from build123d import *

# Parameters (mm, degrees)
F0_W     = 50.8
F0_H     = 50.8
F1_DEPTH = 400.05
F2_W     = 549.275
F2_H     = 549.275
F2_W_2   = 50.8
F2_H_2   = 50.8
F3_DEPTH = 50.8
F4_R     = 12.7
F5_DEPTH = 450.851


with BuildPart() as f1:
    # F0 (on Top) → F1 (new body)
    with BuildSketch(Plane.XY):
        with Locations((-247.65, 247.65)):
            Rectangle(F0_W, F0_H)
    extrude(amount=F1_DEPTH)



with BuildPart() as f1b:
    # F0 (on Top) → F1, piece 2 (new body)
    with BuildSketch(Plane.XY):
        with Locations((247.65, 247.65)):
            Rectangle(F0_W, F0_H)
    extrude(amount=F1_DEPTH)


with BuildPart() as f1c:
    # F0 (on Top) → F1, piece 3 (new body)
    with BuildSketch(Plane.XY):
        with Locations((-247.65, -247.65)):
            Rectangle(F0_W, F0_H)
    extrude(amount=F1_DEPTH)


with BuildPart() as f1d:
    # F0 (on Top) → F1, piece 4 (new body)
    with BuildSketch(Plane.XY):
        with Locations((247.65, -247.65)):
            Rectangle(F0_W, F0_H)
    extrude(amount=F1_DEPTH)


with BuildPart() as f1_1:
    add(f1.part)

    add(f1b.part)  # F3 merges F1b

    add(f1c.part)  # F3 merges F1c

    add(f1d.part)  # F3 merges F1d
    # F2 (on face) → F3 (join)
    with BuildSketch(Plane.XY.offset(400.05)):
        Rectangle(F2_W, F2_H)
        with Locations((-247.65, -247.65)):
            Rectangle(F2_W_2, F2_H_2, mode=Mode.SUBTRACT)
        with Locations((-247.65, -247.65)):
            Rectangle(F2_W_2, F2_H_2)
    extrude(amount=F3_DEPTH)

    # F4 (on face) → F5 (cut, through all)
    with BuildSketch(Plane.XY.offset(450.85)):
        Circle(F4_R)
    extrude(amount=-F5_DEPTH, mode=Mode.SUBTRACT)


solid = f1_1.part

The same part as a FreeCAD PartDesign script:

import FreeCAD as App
import Part
import Sketcher
Q = App.Units.Quantity

doc = App.newDocument("Part")
body = doc.addObject("PartDesign::Body", "Body")

# Sketch on XY plane
sketch1 = doc.addObject("Sketcher::SketchObject", "Sketch")
body.addObject(sketch1)
sketch1.AttachmentSupport = (doc.XY_Plane, [""])
sketch1.MapMode = "FlatFace"
sketch1.addGeometry([
    Part.LineSegment(App.Vector(-273, 273, 0), App.Vector(-273, 222, 0)),
    Part.LineSegment(App.Vector(-273, 222, 0), App.Vector(-222, 222, 0)),
    Part.LineSegment(App.Vector(-222, 222, 0), App.Vector(-222, 273, 0)),
    Part.LineSegment(App.Vector(-222, 273, 0), App.Vector(-273, 273, 0)),
], False)
sketch1.addConstraint([
    Sketcher.Constraint("Coincident", 0, 2, 1, 1),
    Sketcher.Constraint("Coincident", 1, 2, 2, 1),
    Sketcher.Constraint("Coincident", 2, 2, 3, 1),
    Sketcher.Constraint("Coincident", 3, 2, 0, 1),
    Sketcher.Constraint("Vertical", 0),
    Sketcher.Constraint("Horizontal", 1),
    Sketcher.Constraint("Vertical", 2),
    Sketcher.Constraint("Horizontal", 3),
    Sketcher.Constraint("Equal", 3, 0),
    Sketcher.Constraint("DistanceX", 1, 1, 1, 2, Q("2 in")),
    Sketcher.Constraint("DistanceX", 0, 2, -1, 1, Q("10.75 in")),
    Sketcher.Constraint("DistanceY", -1, 1, 0, 2, Q("8.75 in")),
])
pad1 = doc.addObject("PartDesign::Pad", "Pad")
body.addObject(pad1)
pad1.Profile = sketch1
pad1.Length = Q("15.75 in")
body2 = doc.addObject("PartDesign::Body", "Body001")

# Sketch on XY plane
sketch2 = doc.addObject("Sketcher::SketchObject", "Sketch001")
body2.addObject(sketch2)
sketch2.AttachmentSupport = (doc.getObject("XY_Plane001"), [""])
sketch2.MapMode = "FlatFace"
sketch2.addGeometry([
    Part.LineSegment(App.Vector(222, 273, 0), App.Vector(222, 222, 0)),
    Part.LineSegment(App.Vector(222, 222, 0), App.Vector(273, 222, 0)),
    Part.LineSegment(App.Vector(273, 222, 0), App.Vector(273, 273, 0)),
    Part.LineSegment(App.Vector(273, 273, 0), App.Vector(222, 273, 0)),
], False)
sketch2.addConstraint([
    Sketcher.Constraint("Coincident", 0, 2, 1, 1),
    Sketcher.Constraint("Coincident", 1, 2, 2, 1),
    Sketcher.Constraint("Coincident", 2, 2, 3, 1),
    Sketcher.Constraint("Coincident", 3, 2, 0, 1),
    Sketcher.Constraint("Vertical", 0),
    Sketcher.Constraint("Horizontal", 1),
    Sketcher.Constraint("Vertical", 2),
    Sketcher.Constraint("Horizontal", 3),
    Sketcher.Constraint("Equal", 3, 0),
    Sketcher.Constraint("DistanceX", 1, 1, 1, 2, Q("2 in")),
    Sketcher.Constraint("DistanceX", -1, 1, 0, 2, Q("8.75 in")),
    Sketcher.Constraint("DistanceY", -1, 1, 0, 2, Q("8.75 in")),
])
pad2 = doc.addObject("PartDesign::Pad", "Pad001")
body2.addObject(pad2)
pad2.Profile = sketch2
pad2.Length = Q("15.75 in")
body3 = doc.addObject("PartDesign::Body", "Body002")

# Sketch on XY plane
sketch3 = doc.addObject("Sketcher::SketchObject", "Sketch002")
body3.addObject(sketch3)
sketch3.AttachmentSupport = (doc.getObject("XY_Plane002"), [""])
sketch3.MapMode = "FlatFace"
sketch3.addGeometry([
    Part.LineSegment(App.Vector(-273, -222, 0), App.Vector(-273, -273, 0)),
    Part.LineSegment(App.Vector(-273, -273, 0), App.Vector(-222, -273, 0)),
    Part.LineSegment(App.Vector(-222, -273, 0), App.Vector(-222, -222, 0)),
    Part.LineSegment(App.Vector(-222, -222, 0), App.Vector(-273, -222, 0)),
], False)
sketch3.addConstraint([
    Sketcher.Constraint("Coincident", 0, 2, 1, 1),
    Sketcher.Constraint("Coincident", 1, 2, 2, 1),
    Sketcher.Constraint("Coincident", 2, 2, 3, 1),
    Sketcher.Constraint("Coincident", 3, 2, 0, 1),
    Sketcher.Constraint("Vertical", 0),
    Sketcher.Constraint("Horizontal", 1),
    Sketcher.Constraint("Vertical", 2),
    Sketcher.Constraint("Horizontal", 3),
    Sketcher.Constraint("Equal", 3, 0),
    Sketcher.Constraint("DistanceX", 1, 1, 1, 2, Q("2 in")),
    Sketcher.Constraint("DistanceX", 0, 2, -1, 1, Q("10.75 in")),
    Sketcher.Constraint("DistanceY", 0, 2, -1, 1, Q("10.75 in")),
])
pad3 = doc.addObject("PartDesign::Pad", "Pad002")
body3.addObject(pad3)
pad3.Profile = sketch3
pad3.Length = Q("15.75 in")
body4 = doc.addObject("PartDesign::Body", "Body003")

# Sketch on XY plane
sketch4 = doc.addObject("Sketcher::SketchObject", "Sketch003")
body4.addObject(sketch4)
sketch4.AttachmentSupport = (doc.getObject("XY_Plane003"), [""])
sketch4.MapMode = "FlatFace"
sketch4.addGeometry([
    Part.LineSegment(App.Vector(222, -222, 0), App.Vector(222, -273, 0)),
    Part.LineSegment(App.Vector(222, -273, 0), App.Vector(273, -273, 0)),
    Part.LineSegment(App.Vector(273, -273, 0), App.Vector(273, -222, 0)),
    Part.LineSegment(App.Vector(273, -222, 0), App.Vector(222, -222, 0)),
], False)
sketch4.addConstraint([
    Sketcher.Constraint("Coincident", 0, 2, 1, 1),
    Sketcher.Constraint("Coincident", 1, 2, 2, 1),
    Sketcher.Constraint("Coincident", 2, 2, 3, 1),
    Sketcher.Constraint("Coincident", 3, 2, 0, 1),
    Sketcher.Constraint("Vertical", 0),
    Sketcher.Constraint("Horizontal", 1),
    Sketcher.Constraint("Vertical", 2),
    Sketcher.Constraint("Horizontal", 3),
    Sketcher.Constraint("Equal", 3, 0),
    Sketcher.Constraint("DistanceX", 1, 1, 1, 2, Q("2 in")),
    Sketcher.Constraint("DistanceX", -1, 1, 0, 2, Q("8.75 in")),
    Sketcher.Constraint("DistanceY", 0, 2, -1, 1, Q("10.75 in")),
])
pad4 = doc.addObject("PartDesign::Pad", "Pad003")
body4.addObject(pad4)
pad4.Profile = sketch4
pad4.Length = Q("15.75 in")
body.AllowCompound = True
doc.recompute()

boolean = doc.addObject("PartDesign::Boolean", "Boolean")
body.addObject(boolean)
boolean.Type = "Fuse"
boolean.addObjects([body2])
doc.recompute()

boolean2 = doc.addObject("PartDesign::Boolean", "Boolean001")
body.addObject(boolean2)
boolean2.Type = "Fuse"
boolean2.addObjects([body3])
doc.recompute()

boolean3 = doc.addObject("PartDesign::Boolean", "Boolean002")
body.addObject(boolean3)
boolean3.Type = "Fuse"
boolean3.addObjects([body4])

# Sketch on XY plane
sketch5 = doc.addObject("Sketcher::SketchObject", "Sketch004")
body.addObject(sketch5)
sketch5.AttachmentSupport = (doc.XY_Plane, [""])
sketch5.MapMode = "FlatFace"
sketch5.AttachmentOffset = App.Placement(App.Vector(0, 0, 15.75 * 25.4), App.Rotation())
sketch5.addGeometry([
    Part.LineSegment(App.Vector(-275, 275, 0), App.Vector(-275, -275, 0)),
    Part.LineSegment(App.Vector(-275, -275, 0), App.Vector(275, -275, 0)),
    Part.LineSegment(App.Vector(275, -275, 0), App.Vector(275, 275, 0)),
    Part.LineSegment(App.Vector(275, 275, 0), App.Vector(-275, 275, 0)),
], False)
sketch5.addConstraint([
    Sketcher.Constraint("Coincident", 0, 2, 1, 1),
    Sketcher.Constraint("Coincident", 1, 2, 2, 1),
    Sketcher.Constraint("Coincident", 2, 2, 3, 1),
    Sketcher.Constraint("Coincident", 3, 2, 0, 1),
    Sketcher.Constraint("Vertical", 0),
    Sketcher.Constraint("Horizontal", 1),
    Sketcher.Constraint("Vertical", 2),
    Sketcher.Constraint("Horizontal", 3),
    Sketcher.Constraint("Symmetric", 0, 2, 2, 2, -1, 1),
    Sketcher.Constraint("Equal", 3, 0),
    Sketcher.Constraint("DistanceX", 1, 1, 1, 2, Q("21.625 in")),
])
pad5 = doc.addObject("PartDesign::Pad", "Pad004")
body.addObject(pad5)
pad5.Profile = sketch5
pad5.Length = Q("2 in")

# Sketch on XY plane
sketch6 = doc.addObject("Sketcher::SketchObject", "Sketch005")
body.addObject(sketch6)
sketch6.AttachmentSupport = (doc.XY_Plane, [""])
sketch6.MapMode = "FlatFace"
sketch6.AttachmentOffset = App.Placement(App.Vector(0, 0, 17.75 * 25.4), App.Rotation())
sketch6.addGeometry(Part.Circle(App.Vector(0, 0, 0), App.Vector(0, 0, 1), 13), False)
sketch6.addConstraint([
    Sketcher.Constraint("Coincident", 0, 3, -1, 1),
    Sketcher.Constraint("Diameter", 0, Q("1 in")),
])
pocket1 = doc.addObject("PartDesign::Pocket", "Pocket")
body.addObject(pocket1)
pocket1.Profile = sketch6
pocket1.Type = "ThroughAll"

doc.recompute()
